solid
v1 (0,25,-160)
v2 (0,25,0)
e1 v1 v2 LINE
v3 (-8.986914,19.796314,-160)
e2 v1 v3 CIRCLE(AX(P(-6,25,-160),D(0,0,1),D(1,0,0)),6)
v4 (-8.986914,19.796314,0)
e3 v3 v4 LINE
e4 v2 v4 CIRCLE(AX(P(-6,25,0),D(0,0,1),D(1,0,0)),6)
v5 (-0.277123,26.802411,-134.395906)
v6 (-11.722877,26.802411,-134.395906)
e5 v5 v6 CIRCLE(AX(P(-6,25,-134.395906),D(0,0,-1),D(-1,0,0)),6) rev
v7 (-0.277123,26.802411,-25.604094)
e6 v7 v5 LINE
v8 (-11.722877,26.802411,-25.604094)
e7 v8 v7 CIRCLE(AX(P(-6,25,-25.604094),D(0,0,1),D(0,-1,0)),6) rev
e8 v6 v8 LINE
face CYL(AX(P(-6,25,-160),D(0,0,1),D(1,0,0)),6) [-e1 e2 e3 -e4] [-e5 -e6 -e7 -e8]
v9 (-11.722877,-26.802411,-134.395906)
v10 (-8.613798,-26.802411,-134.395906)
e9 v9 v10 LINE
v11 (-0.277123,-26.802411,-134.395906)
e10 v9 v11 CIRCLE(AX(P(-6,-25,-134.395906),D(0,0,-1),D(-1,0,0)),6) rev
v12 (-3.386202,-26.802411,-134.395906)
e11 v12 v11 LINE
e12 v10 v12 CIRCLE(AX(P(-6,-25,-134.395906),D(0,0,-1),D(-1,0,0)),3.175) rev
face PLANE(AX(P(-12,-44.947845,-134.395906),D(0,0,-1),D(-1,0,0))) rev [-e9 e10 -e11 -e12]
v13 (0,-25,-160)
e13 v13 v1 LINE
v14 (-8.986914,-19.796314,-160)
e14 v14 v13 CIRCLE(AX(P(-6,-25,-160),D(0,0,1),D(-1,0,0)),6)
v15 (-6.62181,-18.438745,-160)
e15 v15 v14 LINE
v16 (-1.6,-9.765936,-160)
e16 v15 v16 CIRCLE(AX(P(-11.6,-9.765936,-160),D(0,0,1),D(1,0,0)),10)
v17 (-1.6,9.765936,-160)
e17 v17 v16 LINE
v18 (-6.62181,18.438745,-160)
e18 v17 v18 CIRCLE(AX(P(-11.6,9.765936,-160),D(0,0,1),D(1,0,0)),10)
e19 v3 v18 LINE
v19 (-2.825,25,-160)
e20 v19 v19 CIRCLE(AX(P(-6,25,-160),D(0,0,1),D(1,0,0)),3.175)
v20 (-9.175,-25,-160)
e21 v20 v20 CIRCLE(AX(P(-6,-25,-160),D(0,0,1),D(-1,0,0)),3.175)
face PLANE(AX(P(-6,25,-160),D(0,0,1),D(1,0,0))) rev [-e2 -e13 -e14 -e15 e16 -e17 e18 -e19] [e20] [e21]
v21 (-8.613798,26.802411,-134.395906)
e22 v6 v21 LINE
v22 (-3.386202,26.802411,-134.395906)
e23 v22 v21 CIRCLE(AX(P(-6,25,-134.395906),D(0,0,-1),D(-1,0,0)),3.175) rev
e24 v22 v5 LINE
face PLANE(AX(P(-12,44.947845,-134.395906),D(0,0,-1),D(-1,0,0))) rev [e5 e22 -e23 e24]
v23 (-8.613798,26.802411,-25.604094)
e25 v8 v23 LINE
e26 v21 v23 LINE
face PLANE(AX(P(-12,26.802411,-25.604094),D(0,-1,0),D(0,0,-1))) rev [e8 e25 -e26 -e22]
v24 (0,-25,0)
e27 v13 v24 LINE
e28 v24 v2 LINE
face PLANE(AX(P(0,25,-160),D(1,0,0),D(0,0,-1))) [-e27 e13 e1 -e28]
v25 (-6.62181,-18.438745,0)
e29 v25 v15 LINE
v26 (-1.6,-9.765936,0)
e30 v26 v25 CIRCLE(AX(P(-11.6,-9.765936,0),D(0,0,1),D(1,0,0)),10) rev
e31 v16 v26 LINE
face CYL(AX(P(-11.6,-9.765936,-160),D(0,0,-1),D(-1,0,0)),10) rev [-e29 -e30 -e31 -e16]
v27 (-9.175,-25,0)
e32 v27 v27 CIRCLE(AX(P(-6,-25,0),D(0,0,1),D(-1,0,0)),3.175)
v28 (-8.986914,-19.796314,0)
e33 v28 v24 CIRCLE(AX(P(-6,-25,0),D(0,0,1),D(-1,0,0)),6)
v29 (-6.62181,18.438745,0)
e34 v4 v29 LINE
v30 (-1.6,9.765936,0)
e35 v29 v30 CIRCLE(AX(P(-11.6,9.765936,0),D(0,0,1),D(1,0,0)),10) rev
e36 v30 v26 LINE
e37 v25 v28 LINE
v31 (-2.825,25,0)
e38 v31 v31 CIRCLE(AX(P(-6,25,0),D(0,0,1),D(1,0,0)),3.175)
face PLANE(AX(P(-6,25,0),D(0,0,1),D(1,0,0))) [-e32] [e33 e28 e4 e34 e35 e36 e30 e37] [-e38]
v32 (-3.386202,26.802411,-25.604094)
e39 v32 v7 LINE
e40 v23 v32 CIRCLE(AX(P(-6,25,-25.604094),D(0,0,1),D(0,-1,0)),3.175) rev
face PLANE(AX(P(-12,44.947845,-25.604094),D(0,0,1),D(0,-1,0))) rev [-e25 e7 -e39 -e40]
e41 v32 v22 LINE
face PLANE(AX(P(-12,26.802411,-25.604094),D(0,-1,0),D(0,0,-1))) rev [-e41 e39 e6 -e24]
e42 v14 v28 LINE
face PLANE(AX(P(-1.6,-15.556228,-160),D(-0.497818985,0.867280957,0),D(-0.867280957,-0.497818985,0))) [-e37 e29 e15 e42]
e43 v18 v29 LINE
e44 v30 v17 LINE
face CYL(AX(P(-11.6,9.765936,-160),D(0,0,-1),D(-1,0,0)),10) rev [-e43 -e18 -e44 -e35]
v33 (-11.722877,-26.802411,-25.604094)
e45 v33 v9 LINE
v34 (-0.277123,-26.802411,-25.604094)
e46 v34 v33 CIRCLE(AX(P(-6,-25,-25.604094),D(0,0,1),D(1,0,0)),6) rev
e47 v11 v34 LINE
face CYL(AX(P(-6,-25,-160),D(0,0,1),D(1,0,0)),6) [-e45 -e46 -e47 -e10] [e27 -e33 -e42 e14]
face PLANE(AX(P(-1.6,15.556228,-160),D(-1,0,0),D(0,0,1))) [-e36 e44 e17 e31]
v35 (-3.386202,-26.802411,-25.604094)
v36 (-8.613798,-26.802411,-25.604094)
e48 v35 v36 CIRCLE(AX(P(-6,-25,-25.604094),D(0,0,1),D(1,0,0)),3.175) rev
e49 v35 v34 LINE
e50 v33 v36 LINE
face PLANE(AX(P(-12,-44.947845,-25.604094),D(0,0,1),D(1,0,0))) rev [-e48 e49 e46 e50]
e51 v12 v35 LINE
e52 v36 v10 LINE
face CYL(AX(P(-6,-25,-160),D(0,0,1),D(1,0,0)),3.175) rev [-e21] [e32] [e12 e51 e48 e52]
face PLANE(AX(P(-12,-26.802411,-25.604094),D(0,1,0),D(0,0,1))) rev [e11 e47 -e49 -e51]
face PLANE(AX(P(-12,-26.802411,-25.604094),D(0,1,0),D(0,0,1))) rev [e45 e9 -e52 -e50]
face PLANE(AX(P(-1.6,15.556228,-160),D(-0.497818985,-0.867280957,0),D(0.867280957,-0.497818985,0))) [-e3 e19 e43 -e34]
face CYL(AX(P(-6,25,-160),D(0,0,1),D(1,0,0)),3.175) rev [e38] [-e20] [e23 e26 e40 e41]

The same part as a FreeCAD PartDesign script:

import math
import FreeCAD as App
import Part
import Sketcher


def edges_at(feature, points):
    """Names of the edges that pass closest to the given points."""
    edges = feature.Shape.Edges
    near = lambda p: min(range(len(edges)), key=lambda i: edges[i].distToShape(Part.Vertex(*p))[0])
    return sorted({f"Edge{near(p) + 1}" for p in points})


def add_polygon(sketch, points):
    """Adds a closed chain of lines whose ends are joined by coincident constraints."""
    first, n = sketch.GeometryCount, len(points)
    for a, b in zip(points, points[1:] + points[:1]):
        sketch.addGeometry(Part.LineSegment(App.Vector(*a, 0), App.Vector(*b, 0)), False)
    for i in range(n):
        sketch.addConstraint(Sketcher.Constraint("Coincident", first + i, 2, first + (i + 1) % n, 1))

doc = App.newDocument("Part")
params = doc.addObject("Spreadsheet::Sheet", "Params")
for row, (alias, value) in enumerate([
    ("sketch1_radius", "6 mm"),
    ("sketch1_diameter", "6.35 mm"),
    ("sketch1_height", "50 mm"),
    ("pad1_length", "160 mm"),
    ("fillet_radius", "10 mm"),
], start=1):
    params.set(f"A{row}", alias)
    params.set(f"B{row}", "=" + value)
    params.setAlias(f"B{row}", alias)

body = doc.addObject("PartDesign::Body", "Body")

# Sketch on XY plane
sketch1 = body.newObject("Sketcher::SketchObject", "Sketch")
sketch1.AttachmentSupport = (doc.getObject("XY_Plane"), [""])
sketch1.MapMode = "FlatFace"
sketch1.addGeometry(Part.LineSegment(App.Vector(-9, 19.8, 0), App.Vector(-1.6, 15.6, 0)), False)
sketch1.addGeometry(Part.LineSegment(App.Vector(-1.6, 15.6, 0), App.Vector(-1.6, -15.6, 0)), False)
sketch1.addGeometry(Part.LineSegment(App.Vector(-1.6, -15.6, 0), App.Vector(-9, -19.8, 0)), False)
sketch1.addGeometry(Part.ArcOfCircle(Part.Circle(App.Vector(-6, -25, 0), App.Vector(0, 0, 1), 6), math.radians(120), math.radians(360)), False)
sketch1.addGeometry(Part.LineSegment(App.Vector(0, -25, 0), App.Vector(0, 25, 0)), False)
sketch1.addGeometry(Part.ArcOfCircle(Part.Circle(App.Vector(-6, 25, 0), App.Vector(0, 0, 1), 6), math.radians(0), math.radians(240)), False)
sketch1.addGeometry(Part.Circle(App.Vector(-6, -25, 0), App.Vector(0, 0, 1), 3.2), False)
sketch1.addGeometry(Part.Circle(App.Vector(-6, 25, 0), App.Vector(0, 0, 1), 3.2), False)
sketch1.addConstraint(Sketcher.Constraint("Coincident", 0, 2, 1, 1))
sketch1.addConstraint(Sketcher.Constraint("Coincident", 1, 2, 2, 1))
sketch1.addConstraint(Sketcher.Constraint("Tangent", 2, 2, 3, 1))
sketch1.addConstraint(Sketcher.Constraint("Tangent", 3, 2, 4, 1))
sketch1.addConstraint(Sketcher.Constraint("Tangent", 4, 2, 5, 1))
sketch1.addConstraint(Sketcher.Constraint("Tangent", 5, 2, 0, 1))
sketch1.addConstraint(Sketcher.Constraint("Vertical", 1))
sketch1.addConstraint(Sketcher.Constraint("Vertical", 4))
sketch1.addConstraint(Sketcher.Constraint("Coincident", 6, 3, 3, 3))
sketch1.addConstraint(Sketcher.Constraint("Coincident", 7, 3, 5, 3))
sketch1.addConstraint(Sketcher.Constraint("Equal", 3, 5))
sketch1.addConstraint(Sketcher.Constraint("Equal", 6, 7))
sketch1.addConstraint(Sketcher.Constraint("Symmetric", 3, 2, 4, 2, -1, 1))
sketch1.addConstraint(Sketcher.Constraint("Vertical", 2, 2, 5, 2))
sketch1.addConstraint(Sketcher.Constraint("Radius", 3, 6.0))
sketch1.addConstraint(Sketcher.Constraint("Diameter", 6, 6.35))
sketch1.addConstraint(Sketcher.Constraint("DistanceY", 4, 1, 4, 2, 50.0))
sketch1.addConstraint(Sketcher.Constraint("DistanceX", 0, 2, -1, 1, 1.6))
sketch1.addConstraint(Sketcher.Constraint("DistanceY", 1, 2, 1, 1, 31.112456))
sketch1.setExpression("Constraints[14]", "Params.sketch1_radius")
sketch1.setExpression("Constraints[15]", "Params.sketch1_diameter")
sketch1.setExpression("Constraints[16]", "Params.sketch1_height")
pad1 = body.newObject("PartDesign::Pad", "Pad")
pad1.Profile = sketch1
pad1.setExpression("Length", "Params.pad1_length")
pad1.Reversed = True
doc.recompute()

fillet = body.newObject("PartDesign::Fillet", "Fillet")
fillet.Base = (pad1, edges_at(pad1, [(-1.6, -15.556, -80), (-1.6, 15.556, -80)]))
fillet.setExpression("Radius", "Params.fillet_radius")

# Sketch on YZ plane
sketch2 = body.newObject("Sketcher::SketchObject", "Sketch001")
sketch2.AttachmentSupport = (doc.getObject("YZ_Plane"), [""])
sketch2.MapMode = "FlatFace"
add_polygon(sketch2, [(45, -26), (27, -26), (27, -134), (45, -134)])  # lines 0-3
add_polygon(sketch2, [(-27, -26), (-45, -26), (-45, -134), (-27, -134)])  # lines 4-7
sketch2.addConstraint(Sketcher.Constraint("Horizontal", 0))
sketch2.addConstraint(Sketcher.Constraint("Vertical", 1))
sketch2.addConstraint(Sketcher.Constraint("Horizontal", 2))
sketch2.addConstraint(Sketcher.Constraint("Vertical", 3))
sketch2.addConstraint(Sketcher.Constraint("Horizontal", 4))
sketch2.addConstraint(Sketcher.Constraint("Vertical", 5))
sketch2.addConstraint(Sketcher.Constraint("Horizontal", 6))
sketch2.addConstraint(Sketcher.Constraint("Vertical", 7))
sketch2.addConstraint(Sketcher.Constraint("Symmetric", 3, 2, 4, 2, -2))
sketch2.addConstraint(Sketcher.Constraint("Symmetric", 1, 2, 6, 2, -2))
sketch2.addConstraint(Sketcher.Constraint("DistanceX", 0, 2, 0, 1, 18.145435))
sketch2.addConstraint(Sketcher.Constraint("DistanceY", 1, 2, 1, 1, 108.791812))
sketch2.addConstraint(Sketcher.Constraint("DistanceX", -1, 1, 0, 2, 26.802411))
sketch2.addConstraint(Sketcher.Constraint("DistanceY", 0, 2, -1, 1, 25.604094))
pocket1 = body.newObject("PartDesign::Pocket", "Pocket")
pocket1.Profile = sketch2
pocket1.Type = "ThroughAll"

doc.recompute()
